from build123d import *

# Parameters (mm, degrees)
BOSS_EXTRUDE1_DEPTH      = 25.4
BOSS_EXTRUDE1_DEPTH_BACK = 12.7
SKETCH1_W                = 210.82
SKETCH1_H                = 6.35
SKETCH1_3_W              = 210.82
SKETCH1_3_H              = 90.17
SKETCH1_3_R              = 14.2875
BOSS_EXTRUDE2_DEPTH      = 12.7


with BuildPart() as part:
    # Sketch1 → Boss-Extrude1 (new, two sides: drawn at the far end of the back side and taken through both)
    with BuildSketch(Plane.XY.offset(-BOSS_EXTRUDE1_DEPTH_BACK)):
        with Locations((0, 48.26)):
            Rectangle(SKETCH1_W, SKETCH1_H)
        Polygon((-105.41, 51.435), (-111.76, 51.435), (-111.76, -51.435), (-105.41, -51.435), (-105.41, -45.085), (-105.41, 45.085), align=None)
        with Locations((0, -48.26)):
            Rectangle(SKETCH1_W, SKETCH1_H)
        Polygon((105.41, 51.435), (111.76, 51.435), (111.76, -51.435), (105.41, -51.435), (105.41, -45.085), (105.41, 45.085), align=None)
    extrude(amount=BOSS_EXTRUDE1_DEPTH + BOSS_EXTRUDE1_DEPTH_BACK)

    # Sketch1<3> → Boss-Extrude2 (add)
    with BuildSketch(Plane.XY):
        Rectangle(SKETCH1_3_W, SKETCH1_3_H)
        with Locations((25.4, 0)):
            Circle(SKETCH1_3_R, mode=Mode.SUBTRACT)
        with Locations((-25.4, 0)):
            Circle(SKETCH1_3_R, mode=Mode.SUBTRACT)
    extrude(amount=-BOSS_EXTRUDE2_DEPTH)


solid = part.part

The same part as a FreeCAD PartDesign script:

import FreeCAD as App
import Part
import Sketcher
Q = App.Units.Quantity

doc = App.newDocument("Part")
body = doc.addObject("PartDesign::Body", "Body")

# Sketch on XY plane
sketch1 = doc.addObject("Sketcher::SketchObject", "Sketch")
body.addObject(sketch1)
sketch1.AttachmentSupport = (doc.XY_Plane, [""])
sketch1.MapMode = "FlatFace"
sketch1.addGeometry([
    Part.LineSegment(App.Vector(-111.76, 51.435, 0), App.Vector(-111.76, -51.435, 0)),  # 0
    Part.LineSegment(App.Vector(-111.76, -51.435, 0), App.Vector(111.76, -51.435, 0)),  # 1
    Part.LineSegment(App.Vector(111.76, -51.435, 0), App.Vector(111.76, 51.435, 0)),  # 2
    Part.LineSegment(App.Vector(111.76, 51.435, 0), App.Vector(-111.76, 51.435, 0)),  # 3
    Part.LineSegment(App.Vector(-105.41, 45.085, 0), App.Vector(105.41, 45.085, 0)),  # 4
    Part.LineSegment(App.Vector(105.41, 45.085, 0), App.Vector(105.41, -45.085, 0)),  # 5
    Part.LineSegment(App.Vector(105.41, -45.085, 0), App.Vector(-105.41, -45.085, 0)),  # 6
    Part.LineSegment(App.Vector(-105.41, -45.085, 0), App.Vector(-105.41, 45.085, 0)),  # 7
], False)
sketch1.addConstraint([
    Sketcher.Constraint("Coincident", 0, 2, 1, 1),
    Sketcher.Constraint("Coincident", 1, 2, 2, 1),
    Sketcher.Constraint("Coincident", 2, 2, 3, 1),
    Sketcher.Constraint("Coincident", 3, 2, 0, 1),
    Sketcher.Constraint("Coincident", 4, 2, 5, 1),
    Sketcher.Constraint("Coincident", 5, 2, 6, 1),
    Sketcher.Constraint("Coincident", 6, 2, 7, 1),
    Sketcher.Constraint("Coincident", 7, 2, 4, 1),
    Sketcher.Constraint("Vertical", 0),
    Sketcher.Constraint("Horizontal", 1),
    Sketcher.Constraint("Vertical", 2),
    Sketcher.Constraint("Horizontal", 3),
    Sketcher.Constraint("Horizontal", 4),
    Sketcher.Constraint("Vertical", 5),
    Sketcher.Constraint("Horizontal", 6),
    Sketcher.Constraint("Vertical", 7),
    Sketcher.Constraint("Symmetric", 0, 2, 2, 2, -1, 1),
    Sketcher.Constraint("Symmetric", 4, 2, 6, 2, -1, 1),
    Sketcher.Constraint("DistanceX", 1, 1, 1, 2, Q("8.8 in")),
    Sketcher.Constraint("DistanceX", 4, 1, 4, 2, Q("8.3 in")),
    Sketcher.Constraint("DistanceY", 0, 2, 0, 1, Q("4.05 in")),
    Sketcher.Constraint("DistanceY", 5, 2, 5, 1, Q("3.55 in")),
])
pad1 = doc.addObject("PartDesign::Pad", "Pad")
body.addObject(pad1)
pad1.Profile = sketch1
pad1.Type = "TwoLengths"
pad1.Length = Q("1 in")
pad1.Length2 = Q("0.5 in")

# Sketch on XY plane
sketch2 = doc.addObject("Sketcher::SketchObject", "Sketch001")
body.addObject(sketch2)
sketch2.AttachmentSupport = (doc.XY_Plane, [""])
sketch2.MapMode = "FlatFace"
sketch2.addGeometry([
    Part.LineSegment(App.Vector(-105.41, 45.085, 0), App.Vector(-105.41, -45.085, 0)),  # 0
    Part.LineSegment(App.Vector(-105.41, -45.085, 0), App.Vector(105.41, -45.085, 0)),  # 1
    Part.LineSegment(App.Vector(105.41, -45.085, 0), App.Vector(105.41, 45.085, 0)),  # 2
    Part.LineSegment(App.Vector(105.41, 45.085, 0), App.Vector(-105.41, 45.085, 0)),  # 3
    Part.Circle(App.Vector(-25.4, 0, 0), App.Vector(0, 0, 1), 14.2875),  # 4
    Part.Circle(App.Vector(25.4, 0, 0), App.Vector(0, 0, 1), 14.2875),  # 5
], False)
sketch2.addConstraint([
    Sketcher.Constraint("Coincident", 0, 2, 1, 1),
    Sketcher.Constraint("Coincident", 1, 2, 2, 1),
    Sketcher.Constraint("Coincident", 2, 2, 3, 1),
    Sketcher.Constraint("Coincident", 3, 2, 0, 1),
    Sketcher.Constraint("Vertical", 0),
    Sketcher.Constraint("Horizontal", 1),
    Sketcher.Constraint("Vertical", 2),
    Sketcher.Constraint("Horizontal", 3),
    Sketcher.Constraint("Equal", 4, 5),
    Sketcher.Constraint("Symmetric", 4, 3, 5, 3, -1, 1),
    Sketcher.Constraint("Symmetric", 0, 2, 2, 2, -1, 1),
    Sketcher.Constraint("PointOnObject", 4, 3, -1),
    Sketcher.Constraint("Diameter", 4, Q("1.125 in")),
    Sketcher.Constraint("DistanceX", 1, 1, 1, 2, Q("8.3 in")),
    Sketcher.Constraint("DistanceX", 4, 3, -1, 1, Q("1 in")),
    Sketcher.Constraint("DistanceY", 0, 2, 0, 1, Q("3.55 in")),
])
pad2 = doc.addObject("PartDesign::Pad", "Pad001")
body.addObject(pad2)
pad2.Profile = sketch2
pad2.Length = Q("0.5 in")
pad2.Reversed = True

doc.recompute()
